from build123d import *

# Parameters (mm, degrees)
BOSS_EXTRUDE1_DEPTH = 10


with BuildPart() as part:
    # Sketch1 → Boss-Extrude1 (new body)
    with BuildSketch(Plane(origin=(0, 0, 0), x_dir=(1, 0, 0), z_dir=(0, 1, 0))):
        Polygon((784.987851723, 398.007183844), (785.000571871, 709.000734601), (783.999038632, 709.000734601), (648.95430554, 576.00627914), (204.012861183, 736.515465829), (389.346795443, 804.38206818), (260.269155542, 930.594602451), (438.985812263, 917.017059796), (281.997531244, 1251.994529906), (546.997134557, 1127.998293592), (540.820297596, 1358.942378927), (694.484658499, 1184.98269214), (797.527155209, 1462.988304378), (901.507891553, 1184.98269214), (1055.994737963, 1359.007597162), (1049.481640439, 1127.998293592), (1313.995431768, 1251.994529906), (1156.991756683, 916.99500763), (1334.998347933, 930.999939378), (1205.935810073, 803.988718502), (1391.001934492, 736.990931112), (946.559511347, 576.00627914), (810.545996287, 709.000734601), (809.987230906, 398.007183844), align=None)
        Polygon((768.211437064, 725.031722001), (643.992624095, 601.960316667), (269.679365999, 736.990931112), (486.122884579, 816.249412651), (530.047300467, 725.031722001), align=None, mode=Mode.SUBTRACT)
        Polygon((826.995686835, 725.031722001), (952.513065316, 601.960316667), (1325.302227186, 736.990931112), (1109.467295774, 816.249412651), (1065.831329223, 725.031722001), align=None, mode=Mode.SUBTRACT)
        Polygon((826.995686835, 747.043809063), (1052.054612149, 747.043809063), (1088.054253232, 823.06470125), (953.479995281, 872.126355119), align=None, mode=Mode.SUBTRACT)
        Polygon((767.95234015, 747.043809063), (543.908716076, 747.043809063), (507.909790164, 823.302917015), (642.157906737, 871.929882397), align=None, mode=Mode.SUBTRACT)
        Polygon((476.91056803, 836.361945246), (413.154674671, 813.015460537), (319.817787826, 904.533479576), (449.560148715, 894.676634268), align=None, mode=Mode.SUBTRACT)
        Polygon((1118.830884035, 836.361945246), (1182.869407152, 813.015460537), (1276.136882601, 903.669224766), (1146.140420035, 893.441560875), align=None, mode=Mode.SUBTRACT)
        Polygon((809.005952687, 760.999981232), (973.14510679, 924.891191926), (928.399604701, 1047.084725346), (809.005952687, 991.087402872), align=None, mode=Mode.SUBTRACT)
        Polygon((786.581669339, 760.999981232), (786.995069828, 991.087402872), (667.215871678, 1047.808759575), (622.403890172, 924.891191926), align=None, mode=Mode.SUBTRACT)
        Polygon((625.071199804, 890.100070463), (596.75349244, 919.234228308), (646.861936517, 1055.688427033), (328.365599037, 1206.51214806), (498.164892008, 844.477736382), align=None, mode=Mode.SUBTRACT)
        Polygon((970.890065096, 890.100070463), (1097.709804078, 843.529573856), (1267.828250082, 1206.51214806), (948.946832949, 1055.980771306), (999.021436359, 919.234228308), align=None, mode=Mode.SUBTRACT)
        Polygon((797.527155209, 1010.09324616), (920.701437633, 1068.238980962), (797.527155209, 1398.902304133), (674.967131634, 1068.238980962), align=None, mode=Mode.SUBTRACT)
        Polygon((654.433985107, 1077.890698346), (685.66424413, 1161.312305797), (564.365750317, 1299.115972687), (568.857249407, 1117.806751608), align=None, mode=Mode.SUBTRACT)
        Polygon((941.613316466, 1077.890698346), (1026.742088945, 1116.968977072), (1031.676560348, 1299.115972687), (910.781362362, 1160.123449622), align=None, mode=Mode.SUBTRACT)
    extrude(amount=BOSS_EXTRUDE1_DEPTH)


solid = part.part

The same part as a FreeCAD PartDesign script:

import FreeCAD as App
import Part
import Sketcher

V = App.Vector

doc = App.newDocument("Part")
body = doc.addObject("PartDesign::Body", "Body")

# Sketch on XZ plane
sketch1 = body.newObject("Sketcher::SketchObject", "Sketch")
sketch1.AttachmentSupport = (doc.getObject("XZ_Plane"), [""])
sketch1.MapMode = "FlatFace"
sketch1.addGeometry(Part.LineSegment(V(785.000572, -709.000735, 0), V(784.987852, -398.007184, 0)), False)
sketch1.addGeometry(Part.LineSegment(V(784.987852, -398.007184, 0), V(809.987231, -398.007184, 0)), False)
sketch1.addGeometry(Part.LineSegment(V(809.987231, -398.007184, 0), V(810.545996, -709.000735, 0)), False)
sketch1.addGeometry(Part.LineSegment(V(810.545996, -709.000735, 0), V(946.559511, -576.006279, 0)), False)
sketch1.addGeometry(Part.LineSegment(V(946.559511, -576.006279, 0), V(1391.001934, -736.990931, 0)), False)
sketch1.addGeometry(Part.LineSegment(V(1391.001934, -736.990931, 0), V(1205.93581, -803.988719, 0)), False)
sketch1.addGeometry(Part.LineSegment(V(1205.93581, -803.988719, 0), V(1334.998348, -930.999939, 0)), False)
sketch1.addGeometry(Part.LineSegment(V(1334.998348, -930.999939, 0), V(1156.991757, -916.995008, 0)), False)
sketch1.addGeometry(Part.LineSegment(V(1156.991757, -916.995008, 0), V(1313.995432, -1251.99453, 0)), False)
sketch1.addGeometry(Part.LineSegment(V(1313.995432, -1251.99453, 0), V(1049.48164, -1127.998294, 0)), False)
sketch1.addGeometry(Part.LineSegment(V(1049.48164, -1127.998294, 0), V(1055.994738, -1359.007597, 0)), False)
sketch1.addGeometry(Part.LineSegment(V(1055.994738, -1359.007597, 0), V(901.507892, -1184.982692, 0)), False)
sketch1.addGeometry(Part.LineSegment(V(901.507892, -1184.982692, 0), V(797.527155, -1462.988304, 0)), False)
sketch1.addGeometry(Part.LineSegment(V(797.527155, -1462.988304, 0), V(694.484658, -1184.982692, 0)), False)
sketch1.addGeometry(Part.LineSegment(V(694.484658, -1184.982692, 0), V(540.820298, -1358.942379, 0)), False)
sketch1.addGeometry(Part.LineSegment(V(540.820298, -1358.942379, 0), V(546.997135, -1127.998294, 0)), False)
sketch1.addGeometry(Part.LineSegment(V(546.997135, -1127.998294, 0), V(281.997531, -1251.99453, 0)), False)
sketch1.addGeometry(Part.LineSegment(V(281.997531, -1251.99453, 0), V(438.985812, -917.01706, 0)), False)
sketch1.addGeometry(Part.LineSegment(V(438.985812, -917.01706, 0), V(260.269156, -930.594602, 0)), False)
sketch1.addGeometry(Part.LineSegment(V(260.269156, -930.594602, 0), V(389.346795, -804.382068, 0)), False)
sketch1.addGeometry(Part.LineSegment(V(389.346795, -804.382068, 0), V(204.012861, -736.515466, 0)), False)
sketch1.addGeometry(Part.LineSegment(V(204.012861, -736.515466, 0), V(648.954306, -576.006279, 0)), False)
sketch1.addGeometry(Part.LineSegment(V(648.954306, -576.006279, 0), V(783.999039, -709.000735, 0)), False)
sketch1.addGeometry(Part.LineSegment(V(783.999039, -709.000735, 0), V(785.000572, -709.000735, 0)), False)
sketch1.addGeometry(Part.LineSegment(V(826.995687, -725.031722, 0), V(1065.831329, -725.031722, 0)), False)
sketch1.addGeometry(Part.LineSegment(V(1065.831329, -725.031722, 0), V(1109.467296, -816.249413, 0)), False)
sketch1.addGeometry(Part.LineSegment(V(1109.467296, -816.249413, 0), V(1325.302227, -736.990931, 0)), False)
sketch1.addGeometry(Part.LineSegment(V(1325.302227, -736.990931, 0), V(952.513065, -601.960317, 0)), False)
sketch1.addGeometry(Part.LineSegment(V(952.513065, -601.960317, 0), V(826.995687, -725.031722, 0)), False)
sketch1.addGeometry(Part.LineSegment(V(1118.830884, -836.361945, 0), V(1146.14042, -893.441561, 0)), False)
sketch1.addGeometry(Part.LineSegment(V(1146.14042, -893.441561, 0), V(1276.136883, -903.669225, 0)), False)
sketch1.addGeometry(Part.LineSegment(V(1276.136883, -903.669225, 0), V(1182.869407, -813.015461, 0)), False)
sketch1.addGeometry(Part.LineSegment(V(1182.869407, -813.015461, 0), V(1118.830884, -836.361945, 0)), False)
sketch1.addGeometry(Part.LineSegment(V(826.995687, -747.043809, 0), V(953.479995, -872.126355, 0)), False)
sketch1.addGeometry(Part.LineSegment(V(953.479995, -872.126355, 0), V(1088.054253, -823.064701, 0)), False)
sketch1.addGeometry(Part.LineSegment(V(1088.054253, -823.064701, 0), V(1052.054612, -747.043809, 0)), False)
sketch1.addGeometry(Part.LineSegment(V(1052.054612, -747.043809, 0), V(826.995687, -747.043809, 0)), False)
sketch1.addGeometry(Part.LineSegment(V(809.005953, -760.999981, 0), V(809.005953, -991.087403, 0)), False)
sketch1.addGeometry(Part.LineSegment(V(809.005953, -991.087403, 0), V(928.399605, -1047.084725, 0)), False)
sketch1.addGeometry(Part.LineSegment(V(928.399605, -1047.084725, 0), V(973.145107, -924.891192, 0)), False)
sketch1.addGeometry(Part.LineSegment(V(973.145107, -924.891192, 0), V(809.005953, -760.999981, 0)), False)
sketch1.addGeometry(Part.LineSegment(V(768.211437, -725.031722, 0), V(643.992624, -601.960317, 0)), False)
sketch1.addGeometry(Part.LineSegment(V(643.992624, -601.960317, 0), V(269.679366, -736.990931, 0)), False)
sketch1.addGeometry(Part.LineSegment(V(269.679366, -736.990931, 0), V(486.122885, -816.249413, 0)), False)
sketch1.addGeometry(Part.LineSegment(V(486.122885, -816.249413, 0), V(530.0473, -725.031722, 0)), False)
sketch1.addGeometry(Part.LineSegment(V(530.0473, -725.031722, 0), V(768.211437, -725.031722, 0)), False)
sketch1.addGeometry(Part.LineSegment(V(767.95234, -747.043809, 0), V(543.908716, -747.043809, 0)), False)
sketch1.addGeometry(Part.LineSegment(V(543.908716, -747.043809, 0), V(507.90979, -823.302917, 0)), False)
sketch1.addGeometry(Part.LineSegment(V(507.90979, -823.302917, 0), V(642.157907, -871.929882, 0)), False)
sketch1.addGeometry(Part.LineSegment(V(642.157907, -871.929882, 0), V(767.95234, -747.043809, 0)), False)
sketch1.addGeometry(Part.LineSegment(V(786.581669, -760.999981, 0), V(622.40389, -924.891192, 0)), False)
sketch1.addGeometry(Part.LineSegment(V(622.40389, -924.891192, 0), V(667.215872, -1047.80876, 0)), False)
sketch1.addGeometry(Part.LineSegment(V(667.215872, -1047.80876, 0), V(786.99507, -991.087403, 0)), False)
sketch1.addGeometry(Part.LineSegment(V(786.99507, -991.087403, 0), V(786.581669, -760.999981, 0)), False)
sketch1.addGeometry(Part.LineSegment(V(476.910568, -836.361945, 0), V(413.154675, -813.015461, 0)), False)
sketch1.addGeometry(Part.LineSegment(V(413.154675, -813.015461, 0), V(319.817788, -904.53348, 0)), False)
sketch1.addGeometry(Part.LineSegment(V(319.817788, -904.53348, 0), V(449.560149, -894.676634, 0)), False)
sketch1.addGeometry(Part.LineSegment(V(449.560149, -894.676634, 0), V(476.910568, -836.361945, 0)), False)
sketch1.addGeometry(Part.LineSegment(V(970.890065, -890.10007, 0), V(999.021436, -919.234228, 0)), False)
sketch1.addGeometry(Part.LineSegment(V(999.021436, -919.234228, 0), V(948.946833, -1055.980771, 0)), False)
sketch1.addGeometry(Part.LineSegment(V(948.946833, -1055.980771, 0), V(1267.82825, -1206.512148, 0)), False)
sketch1.addGeometry(Part.LineSegment(V(1267.82825, -1206.512148, 0), V(1097.709804, -843.529574, 0)), False)
sketch1.addGeometry(Part.LineSegment(V(1097.709804, -843.529574, 0), V(970.890065, -890.10007, 0)), False)
sketch1.addGeometry(Part.LineSegment(V(941.613316, -1077.890698, 0), V(910.781362, -1160.12345, 0)), False)
sketch1.addGeometry(Part.LineSegment(V(910.781362, -1160.12345, 0), V(1031.67656, -1299.115973, 0)), False)
sketch1.addGeometry(Part.LineSegment(V(1031.67656, -1299.115973, 0), V(1026.742089, -1116.968977, 0)), False)
sketch1.addGeometry(Part.LineSegment(V(1026.742089, -1116.968977, 0), V(941.613316, -1077.890698, 0)), False)
sketch1.addGeometry(Part.LineSegment(V(797.527155, -1010.093246, 0), V(674.967132, -1068.238981, 0)), False)
sketch1.addGeometry(Part.LineSegment(V(674.967132, -1068.238981, 0), V(797.527155, -1398.902304, 0)), False)
sketch1.addGeometry(Part.LineSegment(V(797.527155, -1398.902304, 0), V(920.701438, -1068.238981, 0)), False)
sketch1.addGeometry(Part.LineSegment(V(920.701438, -1068.238981, 0), V(797.527155, -1010.093246, 0)), False)
sketch1.addGeometry(Part.LineSegment(V(654.433985, -1077.890698, 0), V(568.857249, -1117.806752, 0)), False)
sketch1.addGeometry(Part.LineSegment(V(568.857249, -1117.806752, 0), V(564.36575, -1299.115973, 0)), False)
sketch1.addGeometry(Part.LineSegment(V(564.36575, -1299.115973, 0), V(685.664244, -1161.312306, 0)), False)
sketch1.addGeometry(Part.LineSegment(V(685.664244, -1161.312306, 0), V(654.433985, -1077.890698, 0)), False)
sketch1.addGeometry(Part.LineSegment(V(625.0712, -890.10007, 0), V(498.164892, -844.477736, 0)), False)
sketch1.addGeometry(Part.LineSegment(V(498.164892, -844.477736, 0), V(328.365599, -1206.512148, 0)), False)
sketch1.addGeometry(Part.LineSegment(V(328.365599, -1206.512148, 0), V(646.861937, -1055.688427, 0)), False)
sketch1.addGeometry(Part.LineSegment(V(646.861937, -1055.688427, 0), V(596.753492, -919.234228, 0)), False)
sketch1.addGeometry(Part.LineSegment(V(596.753492, -919.234228, 0), V(625.0712, -890.10007, 0)), False)
sketch1.addConstraint(Sketcher.Constraint("Coincident", 0, 2, 1, 1))
sketch1.addConstraint(Sketcher.Constraint("Coincident", 1, 2, 2, 1))
sketch1.addConstraint(Sketcher.Constraint("Coincident", 2, 2, 3, 1))
sketch1.addConstraint(Sketcher.Constraint("Coincident", 3, 2, 4, 1))
sketch1.addConstraint(Sketcher.Constraint("Coincident", 4, 2, 5, 1))
sketch1.addConstraint(Sketcher.Constraint("Coincident", 5, 2, 6, 1))
sketch1.addConstraint(Sketcher.Constraint("Coincident", 6, 2, 7, 1))
sketch1.addConstraint(Sketcher.Constraint("Coincident", 7, 2, 8, 1))
sketch1.addConstraint(Sketcher.Constraint("Coincident", 8, 2, 9, 1))
sketch1.addConstraint(Sketcher.Constraint("Coincident", 9, 2, 10, 1))
sketch1.addConstraint(Sketcher.Constraint("Coincident", 10, 2, 11, 1))
sketch1.addConstraint(Sketcher.Constraint("Coincident", 11, 2, 12, 1))
sketch1.addConstraint(Sketcher.Constraint("Coincident", 12, 2, 13, 1))
sketch1.addConstraint(Sketcher.Constraint("Coincident", 13, 2, 14, 1))
sketch1.addConstraint(Sketcher.Constraint("Coincident", 14, 2, 15, 1))
sketch1.addConstraint(Sketcher.Constraint("Coincident", 15, 2, 16, 1))
sketch1.addConstraint(Sketcher.Constraint("Coincident", 16, 2, 17, 1))
sketch1.addConstraint(Sketcher.Constraint("Coincident", 17, 2, 18, 1))
sketch1.addConstraint(Sketcher.Constraint("Coincident", 18, 2, 19, 1))
sketch1.addConstraint(Sketcher.Constraint("Coincident", 19, 2, 20, 1))
sketch1.addConstraint(Sketcher.Constraint("Coincident", 20, 2, 21, 1))
sketch1.addConstraint(Sketcher.Constraint("Coincident", 21, 2, 22, 1))
sketch1.addConstraint(Sketcher.Constraint("Coincident", 22, 2, 23, 1))
sketch1.addConstraint(Sketcher.Constraint("Coincident", 23, 2, 0, 1))
sketch1.addConstraint(Sketcher.Constraint("Coincident", 24, 2, 25, 1))
sketch1.addConstraint(Sketcher.Constraint("Coincident", 25, 2, 26, 1))
sketch1.addConstraint(Sketcher.Constraint("Coincident", 26, 2, 27, 1))
sketch1.addConstraint(Sketcher.Constraint("Coincident", 27, 2, 28, 1))
sketch1.addConstraint(Sketcher.Constraint("Coincident", 28, 2, 24, 1))
sketch1.addConstraint(Sketcher.Constraint("Coincident", 29, 2, 30, 1))
sketch1.addConstraint(Sketcher.Constraint("Coincident", 30, 2, 31, 1))
sketch1.addConstraint(Sketcher.Constraint("Coincident", 31, 2, 32, 1))
sketch1.addConstraint(Sketcher.Constraint("Coincident", 32, 2, 29, 1))
sketch1.addConstraint(Sketcher.Constraint("Coincident", 33, 2, 34, 1))
sketch1.addConstraint(Sketcher.Constraint("Coincident", 34, 2, 35, 1))
sketch1.addConstraint(Sketcher.Constraint("Coincident", 35, 2, 36, 1))
sketch1.addConstraint(Sketcher.Constraint("Coincident", 36, 2, 33, 1))
sketch1.addConstraint(Sketcher.Constraint("Coincident", 37, 2, 38, 1))
sketch1.addConstraint(Sketcher.Constraint("Coincident", 38, 2, 39, 1))
sketch1.addConstraint(Sketcher.Constraint("Coincident", 39, 2, 40, 1))
sketch1.addConstraint(Sketcher.Constraint("Coincident", 40, 2, 37, 1))
sketch1.addConstraint(Sketcher.Constraint("Coincident", 41, 2, 42, 1))
sketch1.addConstraint(Sketcher.Constraint("Coincident", 42, 2, 43, 1))
sketch1.addConstraint(Sketcher.Constraint("Coincident", 43, 2, 44, 1))
sketch1.addConstraint(Sketcher.Constraint("Coincident", 44, 2, 45, 1))
sketch1.addConstraint(Sketcher.Constraint("Coincident", 45, 2, 41, 1))
sketch1.addConstraint(Sketcher.Constraint("Coincident", 46, 2, 47, 1))
sketch1.addConstraint(Sketcher.Constraint("Coincident", 47, 2, 48, 1))
sketch1.addConstraint(Sketcher.Constraint("Coincident", 48, 2, 49, 1))
sketch1.addConstraint(Sketcher.Constraint("Coincident", 49, 2, 46, 1))
sketch1.addConstraint(Sketcher.Constraint("Coincident", 50, 2, 51, 1))
sketch1.addConstraint(Sketcher.Constraint("Coincident", 51, 2, 52, 1))
sketch1.addConstraint(Sketcher.Constraint("Coincident", 52, 2, 53, 1))
sketch1.addConstraint(Sketcher.Constraint("Coincident", 53, 2, 50, 1))
sketch1.addConstraint(Sketcher.Constraint("Coincident", 54, 2, 55, 1))
sketch1.addConstraint(Sketcher.Constraint("Coincident", 55, 2, 56, 1))
sketch1.addConstraint(Sketcher.Constraint("Coincident", 56, 2, 57, 1))
sketch1.addConstraint(Sketcher.Constraint("Coincident", 57, 2, 54, 1))
sketch1.addConstraint(Sketcher.Constraint("Coincident", 58, 2, 59, 1))
sketch1.addConstraint(Sketcher.Constraint("Coincident", 59, 2, 60, 1))
sketch1.addConstraint(Sketcher.Constraint("Coincident", 60, 2, 61, 1))
sketch1.addConstraint(Sketcher.Constraint("Coincident", 61, 2, 62, 1))
sketch1.addConstraint(Sketcher.Constraint("Coincident", 62, 2, 58, 1))
sketch1.addConstraint(Sketcher.Constraint("Coincident", 63, 2, 64, 1))
sketch1.addConstraint(Sketcher.Constraint("Coincident", 64, 2, 65, 1))
sketch1.addConstraint(Sketcher.Constraint("Coincident", 65, 2, 66, 1))
sketch1.addConstraint(Sketcher.Constraint("Coincident", 66, 2, 63, 1))
sketch1.addConstraint(Sketcher.Constraint("Coincident", 67, 2, 68, 1))
sketch1.addConstraint(Sketcher.Constraint("Coincident", 68, 2, 69, 1))
sketch1.addConstraint(Sketcher.Constraint("Coincident", 69, 2, 70, 1))
sketch1.addConstraint(Sketcher.Constraint("Coincident", 70, 2, 67, 1))
sketch1.addConstraint(Sketcher.Constraint("Coincident", 71, 2, 72, 1))
sketch1.addConstraint(Sketcher.Constraint("Coincident", 72, 2, 73, 1))
sketch1.addConstraint(Sketcher.Constraint("Coincident", 73, 2, 74, 1))
sketch1.addConstraint(Sketcher.Constraint("Coincident", 74, 2, 71, 1))
sketch1.addConstraint(Sketcher.Constraint("Coincident", 75, 2, 76, 1))
sketch1.addConstraint(Sketcher.Constraint("Coincident", 76, 2, 77, 1))
sketch1.addConstraint(Sketcher.Constraint("Coincident", 77, 2, 78, 1))
sketch1.addConstraint(Sketcher.Constraint("Coincident", 78, 2, 79, 1))
sketch1.addConstraint(Sketcher.Constraint("Coincident", 79, 2, 75, 1))
sketch1.addConstraint(Sketcher.Constraint("Horizontal", 1))
sketch1.addConstraint(Sketcher.Constraint("Horizontal", 23))
sketch1.addConstraint(Sketcher.Constraint("Horizontal", 24))
sketch1.addConstraint(Sketcher.Constraint("Horizontal", 36))
sketch1.addConstraint(Sketcher.Constraint("Vertical", 37))
sketch1.addConstraint(Sketcher.Constraint("Horizontal", 45))
sketch1.addConstraint(Sketcher.Constraint("Horizontal", 46))
sketch1.addConstraint(Sketcher.Constraint("Parallel", 3, 19))
sketch1.addConstraint(Sketcher.Constraint("Parallel", 4, 27))
sketch1.addConstraint(Sketcher.Constraint("Parallel", 7, 30))
sketch1.addConstraint(Sketcher.Constraint("Parallel", 32, 34))
sketch1.addConstraint(Sketcher.Constraint("Perpendicular", 20, 39))
sketch1.addConstraint(Sketcher.Constraint("Parallel", 21, 42))
sketch1.addConstraint(Sketcher.Constraint("Perpendicular", 39, 43))
sketch1.addConstraint(Sketcher.Constraint("Parallel", 27, 48))
sketch1.addConstraint(Sketcher.Constraint("Perpendicular", 34, 51))
sketch1.addConstraint(Sketcher.Constraint("Perpendicular", 35, 52))
sketch1.addConstraint(Sketcher.Constraint("Parallel", 2, 53))
sketch1.addConstraint(Sketcher.Constraint("Parallel", 43, 54))
sketch1.addConstraint(Sketcher.Constraint("Parallel", 28, 55))
sketch1.addConstraint(Sketcher.Constraint("Parallel", 18, 56))
sketch1.addConstraint(Sketcher.Constraint("Perpendicular", 38, 57))
sketch1.addConstraint(Sketcher.Constraint("Perpendicular", 54, 59))
sketch1.addConstraint(Sketcher.Constraint("Perpendicular", 47, 60))
sketch1.addConstraint(Sketcher.Constraint("Parallel", 8, 61))
sketch1.addConstraint(Sketcher.Constraint("Parallel", 26, 62))
sketch1.addConstraint(Sketcher.Constraint("Parallel", 13, 68))
sketch1.addConstraint(Sketcher.Constraint("Parallel", 60, 70))
sketch1.addConstraint(Sketcher.Constraint("Parallel", 57, 76))
sketch1.addConstraint(Sketcher.Constraint("Parallel", 52, 77))
sketch1.addConstraint(Sketcher.Constraint("Perpendicular", 62, 78))
sketch1.addConstraint(Sketcher.Constraint("Perpendicular", 31, 79))
sketch1.addConstraint(Sketcher.Constraint("Horizontal", 11, 2, 13, 2))
sketch1.addConstraint(Sketcher.Constraint("Horizontal", 9, 2, 15, 2))
sketch1.addConstraint(Sketcher.Constraint("Horizontal", 8, 2, 16, 2))
sketch1.addConstraint(Sketcher.Constraint("Horizontal", 3, 2, 21, 2))
sketch1.addConstraint(Sketcher.Constraint("Horizontal", 2, 2, 22, 2))
sketch1.addConstraint(Sketcher.Constraint("Horizontal", 4, 2, 26, 2))
sketch1.addConstraint(Sketcher.Constraint("Horizontal", 27, 2, 41, 2))
sketch1.addConstraint(Sketcher.Constraint("Horizontal", 26, 2, 42, 2))
sketch1.addConstraint(Sketcher.Constraint("Horizontal", 25, 2, 43, 2))
sketch1.addConstraint(Sketcher.Constraint("Horizontal", 28, 2, 44, 2))
sketch1.addConstraint(Sketcher.Constraint("Horizontal", 36, 2, 46, 2))
sketch1.addConstraint(Sketcher.Constraint("Horizontal", 39, 2, 50, 2))
sketch1.addConstraint(Sketcher.Constraint("Horizontal", 37, 2, 52, 2))
sketch1.addConstraint(Sketcher.Constraint("Horizontal", 40, 2, 53, 2))
sketch1.addConstraint(Sketcher.Constraint("Horizontal", 31, 2, 54, 2))
sketch1.addConstraint(Sketcher.Constraint("Horizontal", 32, 2, 57, 2))
sketch1.addConstraint(Sketcher.Constraint("Horizontal", 67, 2, 69, 2))
sketch1.addConstraint(Sketcher.Constraint("Horizontal", 64, 2, 72, 2))
sketch1.addConstraint(Sketcher.Constraint("Horizontal", 66, 2, 74, 2))
sketch1.addConstraint(Sketcher.Constraint("Horizontal", 60, 2, 76, 2))
sketch1.addConstraint(Sketcher.Constraint("Horizontal", 58, 2, 78, 2))
sketch1.addConstraint(Sketcher.Constraint("Horizontal", 62, 2, 79, 2))
sketch1.addConstraint(Sketcher.Constraint("Vertical", 28, 2, 36, 2))
sketch1.addConstraint(Sketcher.Constraint("Vertical", 12, 2, 68, 2))
sketch1.addConstraint(Sketcher.Constraint("Vertical", 68, 2, 70, 2))
sketch1.addConstraint(Sketcher.Constraint("Distance", 6, 181.077301))
sketch1.addConstraint(Sketcher.Constraint("Distance", 10, 231.101101))
sketch1.addConstraint(Sketcher.Constraint("DistanceX", 1, 1, 1, 2, 24.999379))
sketch1.addConstraint(Sketcher.Constraint("DistanceY", 37, 2, 37, 1, 230.087422))
sketch1.addConstraint(Sketcher.Constraint("DistanceY", 34, 2, -1, 1, 823.064701))
sketch1.addConstraint(Sketcher.Constraint("DistanceX", -1, 1, 44, 2, 530.0473))
sketch1.addConstraint(Sketcher.Constraint("DistanceY", 66, 2, -1, 1, 1077.890698))
sketch1.addConstraint(Sketcher.Constraint("DistanceX", -1, 1, 76, 2, 328.365599))
sketch1.addConstraint(Sketcher.Constraint("DistanceX", -1, 1, 79, 2, 625.0712))
sketch1.addConstraint(Sketcher.Constraint("Distance", 0, 310.993551))
sketch1.addConstraint(Sketcher.Constraint("Distance", 3, 190.229339))
sketch1.addConstraint(Sketcher.Constraint("Distance", 7, 178.556671))
sketch1.addConstraint(Sketcher.Constraint("Distance", 8, 369.96599))
sketch1.addConstraint(Sketcher.Constraint("Distance", 9, 292.134579))
sketch1.addConstraint(Sketcher.Constraint("Distance", 11, 232.703359))
sketch1.addConstraint(Sketcher.Constraint("Distance", 12, 296.814949))
sketch1.addConstraint(Sketcher.Constraint("Distance", 14, 232.10926))
sketch1.addConstraint(Sketcher.Constraint("Distance", 16, 292.574531))
sketch1.addConstraint(Sketcher.Constraint("Distance", 17, 369.939489))
sketch1.addConstraint(Sketcher.Constraint("Distance", 19, 180.528781))
sketch1.addConstraint(Sketcher.Constraint("Distance", 25, 101.117578))
sketch1.addConstraint(Sketcher.Constraint("Distance", 27, 396.49089))
sketch1.addConstraint(Sketcher.Constraint("Distance", 30, 130.39818))
sketch1.addConstraint(Sketcher.Constraint("Distance", 33, 177.88739))
sketch1.addConstraint(Sketcher.Constraint("Distance", 34, 143.238531))
sketch1.addConstraint(Sketcher.Constraint("Distance", 40, 231.952562))
sketch1.addConstraint(Sketcher.Constraint("Distance", 44, 101.242389))
sketch1.addConstraint(Sketcher.Constraint("Distance", 49, 177.25905))
sketch1.addConstraint(Sketcher.Constraint("Distance", 51, 130.83135))
sketch1.addConstraint(Sketcher.Constraint("Distance", 54, 67.89604))
sketch1.addConstraint(Sketcher.Constraint("Distance", 58, 40.499052))
sketch1.addConstraint(Sketcher.Constraint("Distance", 59, 145.626519))
sketch1.addConstraint(Sketcher.Constraint("Distance", 60, 352.62594))
sketch1.addConstraint(Sketcher.Constraint("Distance", 67, 135.653551))
sketch1.addConstraint(Sketcher.Constraint("Distance", 69, 352.85994))
sketch1.addConstraint(Sketcher.Constraint("Distance", 77, 352.402769))
sketch1.addConstraint(Sketcher.Constraint("DistanceX", 23, 1, 23, 2, 1.001533))
sketch1.addConstraint(Sketcher.Constraint("DistanceX", 24, 1, 24, 2, 238.835642))
sketch1.addConstraint(Sketcher.Constraint("DistanceX", 36, 2, 36, 1, 225.058925))
sketch1.addConstraint(Sketcher.Constraint("DistanceX", 45, 1, 45, 2, 238.164137))
sketch1.addConstraint(Sketcher.Constraint("DistanceX", 46, 2, 46, 1, 224.043624))
sketch1.addConstraint(Sketcher.Constraint("DistanceX", -1, 1, 0, 2, 784.987852))
sketch1.addConstraint(Sketcher.Constraint("DistanceX", -1, 1, 3, 2, 946.559511))
sketch1.addConstraint(Sketcher.Constraint("DistanceY", 3, 2, -1, 1, 576.006279))
sketch1.addConstraint(Sketcher.Constraint("DistanceY", 4, 2, -1, 1, 736.990931))
sketch1.addConstraint(Sketcher.Constraint("DistanceX", -1, 1, 5, 2, 1205.93581))
sketch1.addConstraint(Sketcher.Constraint("DistanceY", 5, 2, -1, 1, 803.988719))
sketch1.addConstraint(Sketcher.Constraint("DistanceY", 6, 2, -1, 1, 930.999939))
sketch1.addConstraint(Sketcher.Constraint("DistanceX", -1, 1, 8, 2, 1313.995432))
sketch1.addConstraint(Sketcher.Constraint("DistanceY", 8, 2, -1, 1, 1251.99453))
sketch1.addConstraint(Sketcher.Constraint("DistanceX", -1, 1, 9, 2, 1049.48164))
sketch1.addConstraint(Sketcher.Constraint("DistanceX", -1, 1, 11, 2, 901.507892))
sketch1.addConstraint(Sketcher.Constraint("DistanceX", -1, 1, 13, 2, 694.484658))
sketch1.addConstraint(Sketcher.Constraint("DistanceY", 14, 2, -1, 1, 1358.942379))
sketch1.addConstraint(Sketcher.Constraint("DistanceX", -1, 1, 16, 2, 281.997531))
sketch1.addConstraint(Sketcher.Constraint("DistanceY", 17, 2, -1, 1, 917.01706))
sketch1.addConstraint(Sketcher.Constraint("DistanceY", 19, 2, -1, 1, 804.382068))
sketch1.addConstraint(Sketcher.Constraint("DistanceX", -1, 1, 20, 2, 204.012861))
sketch1.addConstraint(Sketcher.Constraint("DistanceX", -1, 1, 22, 2, 783.999039))
sketch1.addConstraint(Sketcher.Constraint("DistanceX", -1, 1, 24, 2, 1065.831329))
sketch1.addConstraint(Sketcher.Constraint("DistanceX", -1, 1, 29, 2, 1146.14042))
sketch1.addConstraint(Sketcher.Constraint("DistanceY", 29, 2, -1, 1, 893.441561))
sketch1.addConstraint(Sketcher.Constraint("DistanceY", 31, 2, -1, 1, 813.015461))
sketch1.addConstraint(Sketcher.Constraint("DistanceY", 35, 2, -1, 1, 747.043809))
sketch1.addConstraint(Sketcher.Constraint("DistanceY", 39, 2, -1, 1, 924.891192))
sketch1.addConstraint(Sketcher.Constraint("DistanceY", 40, 2, -1, 1, 760.999981))
sketch1.addConstraint(Sketcher.Constraint("DistanceX", -1, 1, 47, 2, 507.90979))
sketch1.addConstraint(Sketcher.Constraint("DistanceX", -1, 1, 49, 2, 767.95234))
sketch1.addConstraint(Sketcher.Constraint("DistanceX", -1, 1, 50, 2, 622.40389))
sketch1.addConstraint(Sketcher.Constraint("DistanceX", -1, 1, 51, 2, 667.215872))
sketch1.addConstraint(Sketcher.Constraint("DistanceX", -1, 1, 53, 2, 786.581669))
sketch1.addConstraint(Sketcher.Constraint("DistanceY", 55, 2, -1, 1, 904.53348))
sketch1.addConstraint(Sketcher.Constraint("DistanceX", -1, 1, 56, 2, 449.560149))
sketch1.addConstraint(Sketcher.Constraint("DistanceX", -1, 1, 57, 2, 476.910568))
sketch1.addConstraint(Sketcher.Constraint("DistanceY", 58, 2, -1, 1, 919.234228))
sketch1.addConstraint(Sketcher.Constraint("DistanceY", 59, 2, -1, 1, 1055.980771))
sketch1.addConstraint(Sketcher.Constraint("DistanceX", -1, 1, 60, 2, 1267.82825))
sketch1.addConstraint(Sketcher.Constraint("DistanceY", 60, 2, -1, 1, 1206.512148))
sketch1.addConstraint(Sketcher.Constraint("DistanceY", 62, 2, -1, 1, 890.10007))
sketch1.addConstraint(Sketcher.Constraint("DistanceY", 63, 2, -1, 1, 1160.12345))
sketch1.addConstraint(Sketcher.Constraint("DistanceX", -1, 1, 64, 2, 1031.67656))
sketch1.addConstraint(Sketcher.Constraint("DistanceX", -1, 1, 65, 2, 1026.742089))
sketch1.addConstraint(Sketcher.Constraint("DistanceX", -1, 1, 67, 2, 674.967132))
sketch1.addConstraint(Sketcher.Constraint("DistanceY", 67, 2, -1, 1, 1068.238981))
sketch1.addConstraint(Sketcher.Constraint("DistanceX", -1, 1, 71, 2, 568.857249))
sketch1.addConstraint(Sketcher.Constraint("DistanceY", 71, 2, -1, 1, 1117.806752))
sketch1.addConstraint(Sketcher.Constraint("DistanceX", -1, 1, 72, 2, 564.36575))
sketch1.addConstraint(Sketcher.Constraint("Distance", 4, 472.699826))
sketch1.addConstraint(Sketcher.Constraint("Distance", 15, 231.026673))
sketch1.addConstraint(Sketcher.Constraint("Distance", 18, 179.231674))
sketch1.addConstraint(Sketcher.Constraint("Distance", 21, 473.007492))
sketch1.addConstraint(Sketcher.Constraint("Distance", 26, 229.927433))
sketch1.addConstraint(Sketcher.Constraint("Distance", 28, 175.787324))
sketch1.addConstraint(Sketcher.Constraint("Distance", 29, 63.276325))
sketch1.addConstraint(Sketcher.Constraint("Distance", 63, 87.822746))
sketch1.addConstraint(Sketcher.Constraint("Distance", 64, 184.213383))
sketch1.addConstraint(Sketcher.Constraint("Distance", 65, 182.213822))
sketch1.addConstraint(Sketcher.Constraint("Distance", 66, 93.669738))
sketch1.addConstraint(Sketcher.Constraint("Distance", 71, 94.428116))
sketch1.addConstraint(Sketcher.Constraint("Distance", 73, 183.584246))
sketch1.addConstraint(Sketcher.Constraint("Distance", 74, 89.075775))
sketch1.addConstraint(Sketcher.Constraint("Distance", 75, 134.857734))
sketch1.addConstraint(Sketcher.Constraint("DistanceX", -1, 1, 37, 2, 809.005953))
pad1 = body.newObject("PartDesign::Pad", "Pad")
pad1.Profile = sketch1
pad1.Length = 10
pad1.Reversed = True

doc.recompute()
